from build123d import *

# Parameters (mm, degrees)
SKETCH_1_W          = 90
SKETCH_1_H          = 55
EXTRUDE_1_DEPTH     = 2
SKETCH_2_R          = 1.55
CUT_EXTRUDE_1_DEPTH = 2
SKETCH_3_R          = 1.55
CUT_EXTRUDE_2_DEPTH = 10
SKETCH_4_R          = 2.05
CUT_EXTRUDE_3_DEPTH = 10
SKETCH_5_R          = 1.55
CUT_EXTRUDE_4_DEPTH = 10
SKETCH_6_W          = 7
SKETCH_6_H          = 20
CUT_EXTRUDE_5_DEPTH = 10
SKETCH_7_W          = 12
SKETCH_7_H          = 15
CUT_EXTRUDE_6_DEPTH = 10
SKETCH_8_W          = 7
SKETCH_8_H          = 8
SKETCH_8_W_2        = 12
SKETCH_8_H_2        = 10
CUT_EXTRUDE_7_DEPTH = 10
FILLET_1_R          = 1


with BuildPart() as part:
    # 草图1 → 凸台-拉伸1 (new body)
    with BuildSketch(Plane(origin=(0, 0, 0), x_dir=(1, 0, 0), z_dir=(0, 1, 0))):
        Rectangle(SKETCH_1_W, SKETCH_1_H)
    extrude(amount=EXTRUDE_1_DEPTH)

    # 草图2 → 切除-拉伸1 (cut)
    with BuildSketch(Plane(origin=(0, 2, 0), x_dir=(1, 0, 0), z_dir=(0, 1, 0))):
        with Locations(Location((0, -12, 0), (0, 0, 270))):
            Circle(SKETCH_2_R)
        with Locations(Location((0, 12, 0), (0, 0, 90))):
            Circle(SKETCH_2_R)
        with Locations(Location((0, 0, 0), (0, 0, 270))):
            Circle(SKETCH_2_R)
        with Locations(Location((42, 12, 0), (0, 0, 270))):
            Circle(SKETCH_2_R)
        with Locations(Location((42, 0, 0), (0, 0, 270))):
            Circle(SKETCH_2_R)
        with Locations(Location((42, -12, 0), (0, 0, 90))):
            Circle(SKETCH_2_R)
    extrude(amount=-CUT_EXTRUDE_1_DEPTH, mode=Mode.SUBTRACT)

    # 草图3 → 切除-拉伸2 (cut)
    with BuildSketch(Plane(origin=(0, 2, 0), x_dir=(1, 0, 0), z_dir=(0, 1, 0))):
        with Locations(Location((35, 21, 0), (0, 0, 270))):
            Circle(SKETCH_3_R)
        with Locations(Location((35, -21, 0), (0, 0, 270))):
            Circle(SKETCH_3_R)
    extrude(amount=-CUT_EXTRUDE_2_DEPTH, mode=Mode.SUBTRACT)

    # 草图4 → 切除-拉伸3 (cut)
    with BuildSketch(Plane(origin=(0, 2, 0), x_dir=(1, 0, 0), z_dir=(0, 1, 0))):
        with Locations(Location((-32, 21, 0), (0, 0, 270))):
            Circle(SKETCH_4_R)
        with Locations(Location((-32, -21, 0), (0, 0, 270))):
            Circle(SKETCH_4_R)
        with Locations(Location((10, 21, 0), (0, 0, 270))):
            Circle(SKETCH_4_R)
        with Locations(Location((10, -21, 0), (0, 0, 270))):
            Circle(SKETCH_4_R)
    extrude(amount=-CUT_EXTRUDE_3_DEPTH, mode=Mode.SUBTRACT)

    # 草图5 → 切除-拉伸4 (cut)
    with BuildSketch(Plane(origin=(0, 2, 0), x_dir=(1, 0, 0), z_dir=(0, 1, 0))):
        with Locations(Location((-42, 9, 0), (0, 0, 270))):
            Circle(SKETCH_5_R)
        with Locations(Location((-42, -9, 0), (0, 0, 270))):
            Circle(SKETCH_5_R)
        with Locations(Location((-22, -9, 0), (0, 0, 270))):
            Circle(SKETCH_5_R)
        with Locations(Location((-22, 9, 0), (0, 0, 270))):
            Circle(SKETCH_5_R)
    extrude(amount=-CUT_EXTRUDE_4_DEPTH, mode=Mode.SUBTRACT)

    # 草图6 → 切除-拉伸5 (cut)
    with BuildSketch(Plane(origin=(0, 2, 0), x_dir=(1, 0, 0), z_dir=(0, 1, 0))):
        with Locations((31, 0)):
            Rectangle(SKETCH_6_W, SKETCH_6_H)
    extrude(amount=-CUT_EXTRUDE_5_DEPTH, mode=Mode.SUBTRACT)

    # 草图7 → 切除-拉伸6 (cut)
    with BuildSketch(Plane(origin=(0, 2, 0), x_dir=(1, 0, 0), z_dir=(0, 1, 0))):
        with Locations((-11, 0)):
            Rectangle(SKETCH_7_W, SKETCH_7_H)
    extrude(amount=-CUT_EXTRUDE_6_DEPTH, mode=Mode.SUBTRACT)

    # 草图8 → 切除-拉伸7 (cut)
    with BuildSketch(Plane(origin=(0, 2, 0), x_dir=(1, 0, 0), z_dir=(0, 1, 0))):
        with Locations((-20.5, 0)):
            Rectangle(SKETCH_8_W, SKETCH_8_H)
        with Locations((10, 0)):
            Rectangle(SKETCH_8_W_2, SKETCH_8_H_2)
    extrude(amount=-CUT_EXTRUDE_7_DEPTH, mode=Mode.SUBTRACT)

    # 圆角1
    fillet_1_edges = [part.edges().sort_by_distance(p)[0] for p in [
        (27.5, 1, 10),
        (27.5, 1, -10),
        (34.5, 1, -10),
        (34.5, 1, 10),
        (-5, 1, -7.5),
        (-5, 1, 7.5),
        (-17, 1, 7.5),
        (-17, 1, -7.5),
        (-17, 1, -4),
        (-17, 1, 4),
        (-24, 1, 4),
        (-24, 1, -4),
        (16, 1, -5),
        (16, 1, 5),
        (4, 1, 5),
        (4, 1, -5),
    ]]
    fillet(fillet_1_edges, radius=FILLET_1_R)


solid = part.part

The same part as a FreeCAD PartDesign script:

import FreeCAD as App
import Part
import Sketcher


def edges_at(feature, points):
    """Names of the edges that pass closest to the given points."""
    edges = feature.Shape.Edges
    near = lambda p: min(range(len(edges)), key=lambda i: edges[i].distToShape(Part.Vertex(*p))[0])
    return sorted({f"Edge{near(p) + 1}" for p in points})


def add_polygon(sketch, points):
    """Adds a closed chain of lines whose ends are joined by coincident constraints."""
    first, n = sketch.GeometryCount, len(points)
    for a, b in zip(points, points[1:] + points[:1]):
        sketch.addGeometry(Part.LineSegment(App.Vector(*a, 0), App.Vector(*b, 0)), False)
    for i in range(n):
        sketch.addConstraint(Sketcher.Constraint("Coincident", first + i, 2, first + (i + 1) % n, 1))

doc = App.newDocument("Part")
body = doc.addObject("PartDesign::Body", "Body")

# Sketch on XZ plane
sketch1 = body.newObject("Sketcher::SketchObject", "Sketch")
sketch1.AttachmentSupport = (doc.getObject("XZ_Plane"), [""])
sketch1.MapMode = "FlatFace"
add_polygon(sketch1, [(-45, -28), (-45, 28), (45, 28), (45, -28)])  # lines 0-3
sketch1.addConstraint(Sketcher.Constraint("Vertical", 0))
sketch1.addConstraint(Sketcher.Constraint("Horizontal", 1))
sketch1.addConstraint(Sketcher.Constraint("Vertical", 2))
sketch1.addConstraint(Sketcher.Constraint("Horizontal", 3))
sketch1.addConstraint(Sketcher.Constraint("Symmetric", 0, 2, 2, 2, -1, 1))
sketch1.addConstraint(Sketcher.Constraint("DistanceX", 1, 1, 1, 2, 90.0))
sketch1.addConstraint(Sketcher.Constraint("DistanceY", 0, 1, 0, 2, 55.0))
pad1 = body.newObject("PartDesign::Pad", "Pad")
pad1.Profile = sketch1
pad1.Length = 2
pad1.Reversed = True

# Sketch on XZ plane
sketch2 = body.newObject("Sketcher::SketchObject", "Sketch001")
sketch2.AttachmentSupport = (doc.getObject("XZ_Plane"), [""])
sketch2.MapMode = "FlatFace"
sketch2.AttachmentOffset = App.Placement(App.Vector(0, 0, -2), App.Rotation())
sketch2.addGeometry(Part.Circle(App.Vector(0, 12, 0), App.Vector(0, 0, 1), 1.6), False)
sketch2.addGeometry(Part.Circle(App.Vector(0, -12, 0), App.Vector(0, 0, 1), 1.6), False)
sketch2.addGeometry(Part.Circle(App.Vector(0, 0, 0), App.Vector(0, 0, 1), 1.6), False)
sketch2.addGeometry(Part.Circle(App.Vector(42, -12, 0), App.Vector(0, 0, 1), 1.6), False)
sketch2.addGeometry(Part.Circle(App.Vector(42, 0, 0), App.Vector(0, 0, 1), 1.6), False)
sketch2.addGeometry(Part.Circle(App.Vector(42, 12, 0), App.Vector(0, 0, 1), 1.6), False)
sketch2.addConstraint(Sketcher.Constraint("Coincident", 2, 3, -1, 1))
sketch2.addConstraint(Sketcher.Constraint("Equal", 0, 1))
sketch2.addConstraint(Sketcher.Constraint("Equal", 1, 2))
sketch2.addConstraint(Sketcher.Constraint("Equal", 2, 3))
sketch2.addConstraint(Sketcher.Constraint("Equal", 3, 4))
sketch2.addConstraint(Sketcher.Constraint("Equal", 4, 5))
sketch2.addConstraint(Sketcher.Constraint("Symmetric", 0, 3, 1, 3, -1, 1))
sketch2.addConstraint(Sketcher.Constraint("Symmetric", 3, 3, 5, 3, -1))
sketch2.addConstraint(Sketcher.Constraint("PointOnObject", 0, 3, -2))
sketch2.addConstraint(Sketcher.Constraint("PointOnObject", 4, 3, -1))
sketch2.addConstraint(Sketcher.Constraint("Horizontal", 1, 3, 3, 3))
sketch2.addConstraint(Sketcher.Constraint("Vertical", 3, 3, 4, 3))
sketch2.addConstraint(Sketcher.Constraint("Diameter", 0, 3.1))
sketch2.addConstraint(Sketcher.Constraint("DistanceY", -1, 1, 0, 3, 12.0))
sketch2.addConstraint(Sketcher.Constraint("DistanceX", -1, 1, 3, 3, 42.0))
pocket1 = body.newObject("PartDesign::Pocket", "Pocket")
pocket1.Profile = sketch2
pocket1.Length = 2
pocket1.Reversed = True

# Sketch on XZ plane
sketch3 = body.newObject("Sketcher::SketchObject", "Sketch002")
sketch3.AttachmentSupport = (doc.getObject("XZ_Plane"), [""])
sketch3.MapMode = "FlatFace"
sketch3.AttachmentOffset = App.Placement(App.Vector(0, 0, -2), App.Rotation())
sketch3.addGeometry(Part.Circle(App.Vector(35, -21, 0), App.Vector(0, 0, 1), 1.6), False)
sketch3.addGeometry(Part.Circle(App.Vector(35, 21, 0), App.Vector(0, 0, 1), 1.6), False)
sketch3.addConstraint(Sketcher.Constraint("Equal", 0, 1))
sketch3.addConstraint(Sketcher.Constraint("Symmetric", 0, 3, 1, 3, -1))
sketch3.addConstraint(Sketcher.Constraint("Diameter", 0, 3.1))
sketch3.addConstraint(Sketcher.Constraint("DistanceX", -1, 1, 0, 3, 35.0))
sketch3.addConstraint(Sketcher.Constraint("DistanceY", 0, 3, -1, 1, 21.0))
pocket2 = body.newObject("PartDesign::Pocket", "Pocket001")
pocket2.Profile = sketch3
pocket2.Length = 10
pocket2.Reversed = True

# Sketch on XZ plane
sketch4 = body.newObject("Sketcher::SketchObject", "Sketch003")
sketch4.AttachmentSupport = (doc.getObject("XZ_Plane"), [""])
sketch4.MapMode = "FlatFace"
sketch4.AttachmentOffset = App.Placement(App.Vector(0, 0, -2), App.Rotation())
sketch4.addGeometry(Part.Circle(App.Vector(-32, -21, 0), App.Vector(0, 0, 1), 2), False)
sketch4.addGeometry(Part.Circle(App.Vector(-32, 21, 0), App.Vector(0, 0, 1), 2), False)
sketch4.addGeometry(Part.Circle(App.Vector(10, -21, 0), App.Vector(0, 0, 1), 2), False)
sketch4.addGeometry(Part.Circle(App.Vector(10, 21, 0), App.Vector(0, 0, 1), 2), False)
sketch4.addConstraint(Sketcher.Constraint("Equal", 0, 1))
sketch4.addConstraint(Sketcher.Constraint("Equal", 1, 2))
sketch4.addConstraint(Sketcher.Constraint("Equal", 2, 3))
sketch4.addConstraint(Sketcher.Constraint("Symmetric", 0, 3, 1, 3, -1))
sketch4.addConstraint(Sketcher.Constraint("Symmetric", 2, 3, 3, 3, -1))
sketch4.addConstraint(Sketcher.Constraint("Horizontal", 0, 3, 2, 3))
sketch4.addConstraint(Sketcher.Constraint("Diameter", 0, 4.1))
sketch4.addConstraint(Sketcher.Constraint("DistanceX", 0, 3, -1, 1, 32.0))
sketch4.addConstraint(Sketcher.Constraint("DistanceY", 0, 3, -1, 1, 21.0))
sketch4.addConstraint(Sketcher.Constraint("DistanceX", -1, 1, 2, 3, 10.0))
pocket3 = body.newObject("PartDesign::Pocket", "Pocket002")
pocket3.Profile = sketch4
pocket3.Length = 10
pocket3.Reversed = True

# Sketch on XZ plane
sketch5 = body.newObject("Sketcher::SketchObject", "Sketch004")
sketch5.AttachmentSupport = (doc.getObject("XZ_Plane"), [""])
sketch5.MapMode = "FlatFace"
sketch5.AttachmentOffset = App.Placement(App.Vector(0, 0, -2), App.Rotation())
sketch5.addGeometry(Part.Circle(App.Vector(-42, -9, 0), App.Vector(0, 0, 1), 1.6), False)
sketch5.addGeometry(Part.Circle(App.Vector(-42, 9, 0), App.Vector(0, 0, 1), 1.6), False)
sketch5.addGeometry(Part.Circle(App.Vector(-22, 9, 0), App.Vector(0, 0, 1), 1.6), False)
sketch5.addGeometry(Part.Circle(App.Vector(-22, -9, 0), App.Vector(0, 0, 1), 1.6), False)
sketch5.addConstraint(Sketcher.Constraint("Equal", 0, 1))
sketch5.addConstraint(Sketcher.Constraint("Equal", 1, 2))
sketch5.addConstraint(Sketcher.Constraint("Equal", 2, 3))
sketch5.addConstraint(Sketcher.Constraint("Symmetric", 0, 3, 1, 3, -1))
sketch5.addConstraint(Sketcher.Constraint("Symmetric", 2, 3, 3, 3, -1))
sketch5.addConstraint(Sketcher.Constraint("Horizontal", 1, 3, 2, 3))
sketch5.addConstraint(Sketcher.Constraint("Diameter", 0, 3.1))
sketch5.addConstraint(Sketcher.Constraint("DistanceX", 0, 3, -1, 1, 42.0))
sketch5.addConstraint(Sketcher.Constraint("DistanceY", 0, 3, -1, 1, 9.0))
sketch5.addConstraint(Sketcher.Constraint("DistanceX", 2, 3, -1, 1, 22.0))
pocket4 = body.newObject("PartDesign::Pocket", "Pocket003")
pocket4.Profile = sketch5
pocket4.Length = 10
pocket4.Reversed = True

# Sketch on XZ plane
sketch6 = body.newObject("Sketcher::SketchObject", "Sketch005")
sketch6.AttachmentSupport = (doc.getObject("XZ_Plane"), [""])
sketch6.MapMode = "FlatFace"
sketch6.AttachmentOffset = App.Placement(App.Vector(0, 0, -2), App.Rotation())
add_polygon(sketch6, [(28, -10), (28, 10), (34, 10), (34, -10)])  # lines 0-3
sketch6.addConstraint(Sketcher.Constraint("Vertical", 0))
sketch6.addConstraint(Sketcher.Constraint("Horizontal", 1))
sketch6.addConstraint(Sketcher.Constraint("Vertical", 2))
sketch6.addConstraint(Sketcher.Constraint("Horizontal", 3))
sketch6.addConstraint(Sketcher.Constraint("DistanceX", 1, 1, 1, 2, 7.0))
sketch6.addConstraint(Sketcher.Constraint("DistanceY", 0, 1, 0, 2, 20.0))
sketch6.addConstraint(Sketcher.Constraint("DistanceY", -1, 1, 0, 2, 10.0))
sketch6.addConstraint(Sketcher.Constraint("DistanceX", -1, 1, 0, 2, 27.5))
pocket5 = body.newObject("PartDesign::Pocket", "Pocket004")
pocket5.Profile = sketch6
pocket5.Length = 10
pocket5.Reversed = True

# Sketch on XZ plane
sketch7 = body.newObject("Sketcher::SketchObject", "Sketch006")
sketch7.AttachmentSupport = (doc.getObject("XZ_Plane"), [""])
sketch7.MapMode = "FlatFace"
sketch7.AttachmentOffset = App.Placement(App.Vector(0, 0, -2), App.Rotation())
add_polygon(sketch7, [(-17, -8), (-17, 8), (-5, 8), (-5, -8)])  # lines 0-3
sketch7.addConstraint(Sketcher.Constraint("Vertical", 0))
sketch7.addConstraint(Sketcher.Constraint("Horizontal", 1))
sketch7.addConstraint(Sketcher.Constraint("Vertical", 2))
sketch7.addConstraint(Sketcher.Constraint("Horizontal", 3))
sketch7.addConstraint(Sketcher.Constraint("DistanceX", 1, 1, 1, 2, 12.0))
sketch7.addConstraint(Sketcher.Constraint("DistanceY", 0, 1, 0, 2, 15.0))
sketch7.addConstraint(Sketcher.Constraint("DistanceX", 0, 2, -1, 1, 17.0))
sketch7.addConstraint(Sketcher.Constraint("DistanceY", -1, 1, 0, 2, 7.5))
pocket6 = body.newObject("PartDesign::Pocket", "Pocket005")
pocket6.Profile = sketch7
pocket6.Length = 10
pocket6.Reversed = True

# Sketch on XZ plane
sketch8 = body.newObject("Sketcher::SketchObject", "Sketch007")
sketch8.AttachmentSupport = (doc.getObject("XZ_Plane"), [""])
sketch8.MapMode = "FlatFace"
sketch8.AttachmentOffset = App.Placement(App.Vector(0, 0, -2), App.Rotation())
add_polygon(sketch8, [(-24, -4), (-24, 4), (-17, 4), (-17, -4)])  # lines 0-3
add_polygon(sketch8, [(4, -5), (4, 5), (16, 5), (16, -5)])  # lines 4-7
sketch8.addConstraint(Sketcher.Constraint("Vertical", 0))
sketch8.addConstraint(Sketcher.Constraint("Horizontal", 1))
sketch8.addConstraint(Sketcher.Constraint("Vertical", 2))
sketch8.addConstraint(Sketcher.Constraint("Horizontal", 3))
sketch8.addConstraint(Sketcher.Constraint("Vertical", 4))
sketch8.addConstraint(Sketcher.Constraint("Horizontal", 5))
sketch8.addConstraint(Sketcher.Constraint("Vertical", 6))
sketch8.addConstraint(Sketcher.Constraint("Horizontal", 7))
sketch8.addConstraint(Sketcher.Constraint("DistanceX", 1, 1, 1, 2, 7.0))
sketch8.addConstraint(Sketcher.Constraint("DistanceX", 5, 1, 5, 2, 12.0))
sketch8.addConstraint(Sketcher.Constraint("DistanceY", 0, 1, 0, 2, 8.0))
sketch8.addConstraint(Sketcher.Constraint("DistanceY", 4, 1, 4, 2, 10.0))
sketch8.addConstraint(Sketcher.Constraint("DistanceX", 0, 2, -1, 1, 24.0))
sketch8.addConstraint(Sketcher.Constraint("DistanceY", -1, 1, 0, 2, 4.0))
sketch8.addConstraint(Sketcher.Constraint("DistanceX", -1, 1, 4, 2, 4.0))
sketch8.addConstraint(Sketcher.Constraint("DistanceY", -1, 1, 4, 2, 5.0))
pocket7 = body.newObject("PartDesign::Pocket", "Pocket006")
pocket7.Profile = sketch8
pocket7.Length = 10
pocket7.Reversed = True
doc.recompute()

fillet = body.newObject("PartDesign::Fillet", "Fillet")
fillet.Base = (pocket7, edges_at(pocket7, [
    (27.5, 1, 10),
    (27.5, 1, -10),
    (34.5, 1, -10),
    (34.5, 1, 10),
    (-5, 1, -7.5),
    (-5, 1, 7.5),
    (-17, 1, 7.5),
    (-17, 1, -7.5),
    (-17, 1, -4),
    (-17, 1, 4),
    (-24, 1, 4),
    (-24, 1, -4),
    (16, 1, -5),
    (16, 1, 5),
    (4, 1, 5),
    (4, 1, -5),
]))
fillet.Radius = 1

doc.recompute()
